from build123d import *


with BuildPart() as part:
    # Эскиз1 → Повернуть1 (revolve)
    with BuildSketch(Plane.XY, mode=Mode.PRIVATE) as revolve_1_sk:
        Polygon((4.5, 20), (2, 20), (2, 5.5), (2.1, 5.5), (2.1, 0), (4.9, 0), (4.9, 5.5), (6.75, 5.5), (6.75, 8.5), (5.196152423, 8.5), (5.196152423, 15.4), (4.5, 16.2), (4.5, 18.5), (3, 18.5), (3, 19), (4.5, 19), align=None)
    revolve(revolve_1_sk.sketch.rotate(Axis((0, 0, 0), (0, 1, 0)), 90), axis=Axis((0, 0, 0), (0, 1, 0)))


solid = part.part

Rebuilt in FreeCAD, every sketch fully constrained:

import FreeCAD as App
import Part
import Sketcher

V = App.Vector

doc = App.newDocument("Part")
body = doc.addObject("PartDesign::Body", "Body")

# Sketch on XY plane
sketch1 = doc.addObject("Sketcher::SketchObject", "Sketch")
body.addObject(sketch1)
sketch1.AttachmentSupport = (doc.XY_Plane, [""])
sketch1.MapMode = "FlatFace"
sketch1.addGeometry([
    Part.LineSegment(V(4.5, 20, 0), V(2, 20, 0)),  # 0
    Part.LineSegment(V(2, 20, 0), V(2, 5.5, 0)),  # 1
    Part.LineSegment(V(2, 5.5, 0), V(2.1, 5.5, 0)),  # 2
    Part.LineSegment(V(2.1, 5.5, 0), V(2.1, 0, 0)),  # 3
    Part.LineSegment(V(2.1, 0, 0), V(4.9, 0, 0)),  # 4
    Part.LineSegment(V(4.9, 0, 0), V(4.9, 5.5, 0)),  # 5
    Part.LineSegment(V(4.9, 5.5, 0), V(6.75, 5.5, 0)),  # 6
    Part.LineSegment(V(6.75, 5.5, 0), V(6.75, 8.5, 0)),  # 7
    Part.LineSegment(V(6.75, 8.5, 0), V(5.196152, 8.5, 0)),  # 8
    Part.LineSegment(V(5.196152, 8.5, 0), V(5.196152, 15.4, 0)),  # 9
    Part.LineSegment(V(5.196152, 15.4, 0), V(4.5, 16.2, 0)),  # 10
    Part.LineSegment(V(4.5, 16.2, 0), V(4.5, 18.5, 0)),  # 11
    Part.LineSegment(V(4.5, 18.5, 0), V(3, 18.5, 0)),  # 12
    Part.LineSegment(V(3, 18.5, 0), V(3, 19, 0)),  # 13
    Part.LineSegment(V(3, 19, 0), V(4.5, 19, 0)),  # 14
    Part.LineSegment(V(4.5, 19, 0), V(4.5, 20, 0)),  # 15
], False)
sketch1.addConstraint([
    Sketcher.Constraint("Coincident", 0, 2, 1, 1),
    Sketcher.Constraint("Coincident", 1, 2, 2, 1),
    Sketcher.Constraint("Coincident", 2, 2, 3, 1),
    Sketcher.Constraint("Coincident", 3, 2, 4, 1),
    Sketcher.Constraint("Coincident", 4, 2, 5, 1),
    Sketcher.Constraint("Coincident", 5, 2, 6, 1),
    Sketcher.Constraint("Coincident", 6, 2, 7, 1),
    Sketcher.Constraint("Coincident", 7, 2, 8, 1),
    Sketcher.Constraint("Coincident", 8, 2, 9, 1),
    Sketcher.Constraint("Coincident", 9, 2, 10, 1),
    Sketcher.Constraint("Coincident", 10, 2, 11, 1),
    Sketcher.Constraint("Coincident", 11, 2, 12, 1),
    Sketcher.Constraint("Coincident", 12, 2, 13, 1),
    Sketcher.Constraint("Coincident", 13, 2, 14, 1),
    Sketcher.Constraint("Coincident", 14, 2, 15, 1),
    Sketcher.Constraint("Coincident", 15, 2, 0, 1),
    Sketcher.Constraint("Horizontal", 0),
    Sketcher.Constraint("Vertical", 1),
    Sketcher.Constraint("Horizontal", 2),
    Sketcher.Constraint("Vertical", 3),
    Sketcher.Constraint("Horizontal", 4),
    Sketcher.Constraint("Vertical", 5),
    Sketcher.Constraint("Horizontal", 6),
    Sketcher.Constraint("Vertical", 7),
    Sketcher.Constraint("Horizontal", 8),
    Sketcher.Constraint("Vertical", 9),
    Sketcher.Constraint("Vertical", 11),
    Sketcher.Constraint("Horizontal", 12),
    Sketcher.Constraint("Vertical", 13),
    Sketcher.Constraint("Horizontal", 14),
    Sketcher.Constraint("Vertical", 15),
    Sketcher.Constraint("PointOnObject", 3, 2, -1),
    Sketcher.Constraint("Horizontal", 2, 2, 5, 2),
    Sketcher.Constraint("Vertical", 11, 2, 14, 2),
    Sketcher.Constraint("DistanceY", 7, 1, 7, 2, 3.0),
    Sketcher.Constraint("DistanceY", 15, 1, 15, 2, 1.0),
    Sketcher.Constraint("DistanceX", 0, 2, 0, 1, 2.5),
    Sketcher.Constraint("DistanceX", 2, 1, 2, 2, 0.1),
    Sketcher.Constraint("DistanceX", 4, 1, 4, 2, 2.8),
    Sketcher.Constraint("DistanceX", 12, 2, 12, 1, 1.5),
    Sketcher.Constraint("DistanceY", 1, 2, 1, 1, 14.5),
    Sketcher.Constraint("DistanceY", 3, 2, 3, 1, 5.5),
    Sketcher.Constraint("DistanceY", 9, 1, 9, 2, 6.9),
    Sketcher.Constraint("DistanceY", 11, 1, 11, 2, 2.3),
    Sketcher.Constraint("DistanceY", 13, 1, 13, 2, 0.5),
    Sketcher.Constraint("DistanceX", -1, 1, 0, 2, 2.0),
    Sketcher.Constraint("DistanceX", 6, 1, 6, 2, 1.85),
    Sketcher.Constraint("DistanceX", 8, 2, 8, 1, 1.553848),
])
revolution = doc.addObject("PartDesign::Revolution", "Revolution")
body.addObject(revolution)
revolution.Profile = sketch1
revolution.ReferenceAxis = (sketch1, ["V_Axis"])
revolution.Angle = 360

doc.recompute()
